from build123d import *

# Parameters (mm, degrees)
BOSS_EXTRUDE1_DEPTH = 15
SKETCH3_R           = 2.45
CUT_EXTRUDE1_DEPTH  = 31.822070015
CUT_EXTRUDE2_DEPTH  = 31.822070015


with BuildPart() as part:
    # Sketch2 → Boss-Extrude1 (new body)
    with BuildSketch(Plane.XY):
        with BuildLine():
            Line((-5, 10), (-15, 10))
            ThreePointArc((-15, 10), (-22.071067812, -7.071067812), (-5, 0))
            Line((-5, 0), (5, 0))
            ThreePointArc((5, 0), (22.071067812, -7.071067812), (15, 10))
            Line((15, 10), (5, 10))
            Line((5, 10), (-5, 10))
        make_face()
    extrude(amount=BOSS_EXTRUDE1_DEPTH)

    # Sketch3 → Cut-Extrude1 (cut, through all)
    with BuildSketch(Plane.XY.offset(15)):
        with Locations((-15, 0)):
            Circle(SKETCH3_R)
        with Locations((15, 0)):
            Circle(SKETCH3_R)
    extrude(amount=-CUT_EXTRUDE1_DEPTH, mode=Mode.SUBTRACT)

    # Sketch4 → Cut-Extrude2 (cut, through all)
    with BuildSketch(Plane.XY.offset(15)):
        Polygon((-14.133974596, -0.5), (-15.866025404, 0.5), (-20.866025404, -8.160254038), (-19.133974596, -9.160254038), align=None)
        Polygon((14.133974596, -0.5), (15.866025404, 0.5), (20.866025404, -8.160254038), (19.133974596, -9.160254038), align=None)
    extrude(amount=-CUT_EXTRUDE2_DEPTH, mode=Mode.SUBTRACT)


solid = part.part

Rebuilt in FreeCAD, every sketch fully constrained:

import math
import FreeCAD as App
import Part
import Sketcher
from FreeCAD import Vector
Q = App.Units.Quantity

doc = App.newDocument("Part")
body = doc.addObject("PartDesign::Body", "Body")

# Sketch on XY plane
sketch1 = body.newObject("Sketcher::SketchObject", "Sketch")
sketch1.AttachmentSupport = (doc.getObject("XY_Plane"), [""])
sketch1.MapMode = "FlatFace"
sketch1.addGeometry([
    Part.ArcOfCircle(Part.Circle(Vector(-15, 0, 0), Vector(0, 0, 1), 10), math.radians(90), math.radians(360)),
    Part.LineSegment(Vector(-5, 0, 0), Vector(5, 0, 0)),
    Part.ArcOfCircle(Part.Circle(Vector(15, 0, 0), Vector(0, 0, 1), 10), math.radians(180), math.radians(450)),
    Part.LineSegment(Vector(15, 10, 0), Vector(-15, 10, 0)),
], False)
sketch1.addConstraint([
    Sketcher.Constraint("Coincident", 0, 2, 1, 1),
    Sketcher.Constraint("Coincident", 1, 2, 2, 1),
    Sketcher.Constraint("Tangent", 2, 2, 3, 1),
    Sketcher.Constraint("Tangent", 3, 2, 0, 1),
    Sketcher.Constraint("Horizontal", 1),
    Sketcher.Constraint("Horizontal", 3),
    Sketcher.Constraint("Equal", 0, 2),
    Sketcher.Constraint("Symmetric", 0, 3, 2, 3, -1, 1),
    Sketcher.Constraint("PointOnObject", 0, 2, -1),
    Sketcher.Constraint("Radius", 0, Q("10 mm")),
    Sketcher.Constraint("DistanceX", 1, 1, 1, 2, Q("10 mm")),
])
pad1 = body.newObject("PartDesign::Pad", "Pad")
pad1.Profile = sketch1
pad1.Length = 15

# Sketch on XY plane
sketch2 = body.newObject("Sketcher::SketchObject", "Sketch001")
sketch2.AttachmentSupport = (doc.getObject("XY_Plane"), [""])
sketch2.MapMode = "FlatFace"
sketch2.AttachmentOffset = App.Placement(Vector(0, 0, 15), App.Rotation())
sketch2.addGeometry([
    Part.Circle(Vector(-15, 0, 0), Vector(0, 0, 1), 2.5),
    Part.Circle(Vector(15, 0, 0), Vector(0, 0, 1), 2.5),
], False)
sketch2.addConstraint([
    Sketcher.Constraint("Equal", 0, 1),
    Sketcher.Constraint("Symmetric", 0, 3, 1, 3, -1, 1),
    Sketcher.Constraint("PointOnObject", 0, 3, -1),
    Sketcher.Constraint("Diameter", 0, Q("4.9 mm")),
    Sketcher.Constraint("DistanceX", 0, 3, -1, 1, Q("15 mm")),
])
pocket1 = body.newObject("PartDesign::Pocket", "Pocket")
pocket1.Profile = sketch2
pocket1.Type = "ThroughAll"

# Sketch on XY plane
sketch3 = body.newObject("Sketcher::SketchObject", "Sketch002")
sketch3.AttachmentSupport = (doc.getObject("XY_Plane"), [""])
sketch3.MapMode = "FlatFace"
sketch3.AttachmentOffset = App.Placement(Vector(0, 0, 15), App.Rotation())
sketch3.addGeometry([
    Part.LineSegment(Vector(-14.1, -0.5, 0), Vector(-15.9, 0.5, 0)),  # 0
    Part.LineSegment(Vector(-15.9, 0.5, 0), Vector(-20.9, -8.2, 0)),  # 1
    Part.LineSegment(Vector(-20.9, -8.2, 0), Vector(-19.1, -9.2, 0)),  # 2
    Part.LineSegment(Vector(-19.1, -9.2, 0), Vector(-14.1, -0.5, 0)),  # 3
    Part.LineSegment(Vector(15.9, 0.5, 0), Vector(14.1, -0.5, 0)),  # 4
    Part.LineSegment(Vector(14.1, -0.5, 0), Vector(19.1, -9.2, 0)),  # 5
    Part.LineSegment(Vector(19.1, -9.2, 0), Vector(20.9, -8.2, 0)),  # 6
    Part.LineSegment(Vector(20.9, -8.2, 0), Vector(15.9, 0.5, 0)),  # 7
], False)
sketch3.addConstraint([
    Sketcher.Constraint("Coincident", 0, 2, 1, 1),
    Sketcher.Constraint("Coincident", 1, 2, 2, 1),
    Sketcher.Constraint("Coincident", 2, 2, 3, 1),
    Sketcher.Constraint("Coincident", 3, 2, 0, 1),
    Sketcher.Constraint("Coincident", 4, 2, 5, 1),
    Sketcher.Constraint("Coincident", 5, 2, 6, 1),
    Sketcher.Constraint("Coincident", 6, 2, 7, 1),
    Sketcher.Constraint("Coincident", 7, 2, 4, 1),
    Sketcher.Constraint("Symmetric", 3, 2, 4, 2, -2),
    Sketcher.Constraint("Symmetric", 2, 2, 5, 2, -2),
    Sketcher.Constraint("Symmetric", 1, 2, 6, 2, -2),
    Sketcher.Constraint("Symmetric", 0, 2, 7, 2, -2),
    Sketcher.Constraint("Perpendicular", 0, 1),
    Sketcher.Constraint("Perpendicular", 1, 2),
    Sketcher.Constraint("Perpendicular", 2, 3),
    Sketcher.Constraint("Angle", 0, Q("150 deg")),
    Sketcher.Constraint("Distance", 0, Q("2 mm")),
    Sketcher.Constraint("Distance", 1, Q("10 mm")),
    Sketcher.Constraint("DistanceX", 0, 2, 4, 2, Q("30 mm")),
    Sketcher.Constraint("DistanceY", -1, 1, 0, 2, Q("0.5 mm")),
])
pocket2 = body.newObject("PartDesign::Pocket", "Pocket001")
pocket2.Profile = sketch3
pocket2.Type = "ThroughAll"

doc.recompute()
